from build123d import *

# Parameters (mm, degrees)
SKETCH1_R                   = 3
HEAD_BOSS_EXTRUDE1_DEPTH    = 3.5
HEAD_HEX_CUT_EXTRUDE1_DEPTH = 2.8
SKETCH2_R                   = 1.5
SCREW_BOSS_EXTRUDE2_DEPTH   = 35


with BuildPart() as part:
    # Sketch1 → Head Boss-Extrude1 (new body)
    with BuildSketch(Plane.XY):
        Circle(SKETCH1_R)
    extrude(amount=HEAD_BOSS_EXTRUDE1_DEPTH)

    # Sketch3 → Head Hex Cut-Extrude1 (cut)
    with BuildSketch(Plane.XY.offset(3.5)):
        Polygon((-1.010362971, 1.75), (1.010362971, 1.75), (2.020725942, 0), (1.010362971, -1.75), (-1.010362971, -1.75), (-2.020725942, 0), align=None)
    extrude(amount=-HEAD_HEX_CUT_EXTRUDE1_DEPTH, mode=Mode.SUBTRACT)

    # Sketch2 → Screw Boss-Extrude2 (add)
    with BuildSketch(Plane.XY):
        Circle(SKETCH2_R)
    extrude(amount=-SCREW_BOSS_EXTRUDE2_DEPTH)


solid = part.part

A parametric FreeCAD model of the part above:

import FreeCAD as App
import Part
import Sketcher
Q = App.Units.Quantity

doc = App.newDocument("Part")
body = doc.addObject("PartDesign::Body", "Body")

sketch1 = body.newObject("Sketcher::SketchObject", "Sketch")
sketch1.AttachmentSupport = (doc.getObject("XY_Plane"), [""])
sketch1.MapMode = "FlatFace"
sketch1.addGeometry(Part.Circle(App.Vector(0, 0, 0), App.Vector(0, 0, 1), 3), False)
sketch1.addConstraint([
    Sketcher.Constraint("Coincident", 0, 3, -1, 1),
    Sketcher.Constraint("Diameter", 0, 6.0),
])
pad1 = body.newObject("PartDesign::Pad", "Pad")
pad1.Profile = sketch1
pad1.Length = 3.5

sketch2 = body.newObject("Sketcher::SketchObject", "Sketch001")
sketch2.AttachmentSupport = (doc.getObject("XY_Plane"), [""])
sketch2.MapMode = "FlatFace"
sketch2.AttachmentOffset = App.Placement(App.Vector(0, 0, 3.5), App.Rotation())
sketch2.addGeometry([
    Part.LineSegment(App.Vector(1.010363, 1.75, 0), App.Vector(-1.010363, 1.75, 0)),
    Part.LineSegment(App.Vector(-1.010363, 1.75, 0), App.Vector(-2.020726, 0, 0)),
    Part.LineSegment(App.Vector(-2.020726, 0, 0), App.Vector(-1.010363, -1.75, 0)),
    Part.LineSegment(App.Vector(-1.010363, -1.75, 0), App.Vector(1.010363, -1.75, 0)),
    Part.LineSegment(App.Vector(1.010363, -1.75, 0), App.Vector(2.020726, 0, 0)),
    Part.LineSegment(App.Vector(2.020726, 0, 0), App.Vector(1.010363, 1.75, 0)),
], False)
sketch2.addConstraint([
    Sketcher.Constraint("Coincident", 0, 2, 1, 1),
    Sketcher.Constraint("Coincident", 1, 2, 2, 1),
    Sketcher.Constraint("Coincident", 2, 2, 3, 1),
    Sketcher.Constraint("Coincident", 3, 2, 4, 1),
    Sketcher.Constraint("Coincident", 4, 2, 5, 1),
    Sketcher.Constraint("Coincident", 5, 2, 0, 1),
    Sketcher.Constraint("Horizontal", 0),
    Sketcher.Constraint("Horizontal", 3),
    Sketcher.Constraint("Symmetric", 0, 2, 3, 2, -1, 1),
    Sketcher.Constraint("Symmetric", 1, 2, 4, 2, -1, 1),
    Sketcher.Constraint("PointOnObject", 1, 2, -1),
    Sketcher.Constraint("Parallel", 2, 5),
    Sketcher.Constraint("Vertical", 0, 2, 2, 2),
    Sketcher.Constraint("Angle", 1, Q("-120 deg")),
    Sketcher.Constraint("DistanceY", 2, 2, 0, 2, 3.5),
    Sketcher.Constraint("DistanceX", 0, 2, 0, 1, 2.020726),
])
pocket1 = body.newObject("PartDesign::Pocket", "Pocket")
pocket1.Profile = sketch2
pocket1.Length = 2.8

sketch3 = body.newObject("Sketcher::SketchObject", "Sketch002")
sketch3.AttachmentSupport = (doc.getObject("XY_Plane"), [""])
sketch3.MapMode = "FlatFace"
sketch3.addGeometry(Part.Circle(App.Vector(0, 0, 0), App.Vector(0, 0, 1), 1.5), False)
sketch3.addConstraint([
    Sketcher.Constraint("Coincident", 0, 3, -1, 1),
    Sketcher.Constraint("Diameter", 0, 3.0),
])
pad2 = body.newObject("PartDesign::Pad", "Pad001")
pad2.Profile = sketch3
pad2.Length = 35
pad2.Reversed = True

doc.recompute()
